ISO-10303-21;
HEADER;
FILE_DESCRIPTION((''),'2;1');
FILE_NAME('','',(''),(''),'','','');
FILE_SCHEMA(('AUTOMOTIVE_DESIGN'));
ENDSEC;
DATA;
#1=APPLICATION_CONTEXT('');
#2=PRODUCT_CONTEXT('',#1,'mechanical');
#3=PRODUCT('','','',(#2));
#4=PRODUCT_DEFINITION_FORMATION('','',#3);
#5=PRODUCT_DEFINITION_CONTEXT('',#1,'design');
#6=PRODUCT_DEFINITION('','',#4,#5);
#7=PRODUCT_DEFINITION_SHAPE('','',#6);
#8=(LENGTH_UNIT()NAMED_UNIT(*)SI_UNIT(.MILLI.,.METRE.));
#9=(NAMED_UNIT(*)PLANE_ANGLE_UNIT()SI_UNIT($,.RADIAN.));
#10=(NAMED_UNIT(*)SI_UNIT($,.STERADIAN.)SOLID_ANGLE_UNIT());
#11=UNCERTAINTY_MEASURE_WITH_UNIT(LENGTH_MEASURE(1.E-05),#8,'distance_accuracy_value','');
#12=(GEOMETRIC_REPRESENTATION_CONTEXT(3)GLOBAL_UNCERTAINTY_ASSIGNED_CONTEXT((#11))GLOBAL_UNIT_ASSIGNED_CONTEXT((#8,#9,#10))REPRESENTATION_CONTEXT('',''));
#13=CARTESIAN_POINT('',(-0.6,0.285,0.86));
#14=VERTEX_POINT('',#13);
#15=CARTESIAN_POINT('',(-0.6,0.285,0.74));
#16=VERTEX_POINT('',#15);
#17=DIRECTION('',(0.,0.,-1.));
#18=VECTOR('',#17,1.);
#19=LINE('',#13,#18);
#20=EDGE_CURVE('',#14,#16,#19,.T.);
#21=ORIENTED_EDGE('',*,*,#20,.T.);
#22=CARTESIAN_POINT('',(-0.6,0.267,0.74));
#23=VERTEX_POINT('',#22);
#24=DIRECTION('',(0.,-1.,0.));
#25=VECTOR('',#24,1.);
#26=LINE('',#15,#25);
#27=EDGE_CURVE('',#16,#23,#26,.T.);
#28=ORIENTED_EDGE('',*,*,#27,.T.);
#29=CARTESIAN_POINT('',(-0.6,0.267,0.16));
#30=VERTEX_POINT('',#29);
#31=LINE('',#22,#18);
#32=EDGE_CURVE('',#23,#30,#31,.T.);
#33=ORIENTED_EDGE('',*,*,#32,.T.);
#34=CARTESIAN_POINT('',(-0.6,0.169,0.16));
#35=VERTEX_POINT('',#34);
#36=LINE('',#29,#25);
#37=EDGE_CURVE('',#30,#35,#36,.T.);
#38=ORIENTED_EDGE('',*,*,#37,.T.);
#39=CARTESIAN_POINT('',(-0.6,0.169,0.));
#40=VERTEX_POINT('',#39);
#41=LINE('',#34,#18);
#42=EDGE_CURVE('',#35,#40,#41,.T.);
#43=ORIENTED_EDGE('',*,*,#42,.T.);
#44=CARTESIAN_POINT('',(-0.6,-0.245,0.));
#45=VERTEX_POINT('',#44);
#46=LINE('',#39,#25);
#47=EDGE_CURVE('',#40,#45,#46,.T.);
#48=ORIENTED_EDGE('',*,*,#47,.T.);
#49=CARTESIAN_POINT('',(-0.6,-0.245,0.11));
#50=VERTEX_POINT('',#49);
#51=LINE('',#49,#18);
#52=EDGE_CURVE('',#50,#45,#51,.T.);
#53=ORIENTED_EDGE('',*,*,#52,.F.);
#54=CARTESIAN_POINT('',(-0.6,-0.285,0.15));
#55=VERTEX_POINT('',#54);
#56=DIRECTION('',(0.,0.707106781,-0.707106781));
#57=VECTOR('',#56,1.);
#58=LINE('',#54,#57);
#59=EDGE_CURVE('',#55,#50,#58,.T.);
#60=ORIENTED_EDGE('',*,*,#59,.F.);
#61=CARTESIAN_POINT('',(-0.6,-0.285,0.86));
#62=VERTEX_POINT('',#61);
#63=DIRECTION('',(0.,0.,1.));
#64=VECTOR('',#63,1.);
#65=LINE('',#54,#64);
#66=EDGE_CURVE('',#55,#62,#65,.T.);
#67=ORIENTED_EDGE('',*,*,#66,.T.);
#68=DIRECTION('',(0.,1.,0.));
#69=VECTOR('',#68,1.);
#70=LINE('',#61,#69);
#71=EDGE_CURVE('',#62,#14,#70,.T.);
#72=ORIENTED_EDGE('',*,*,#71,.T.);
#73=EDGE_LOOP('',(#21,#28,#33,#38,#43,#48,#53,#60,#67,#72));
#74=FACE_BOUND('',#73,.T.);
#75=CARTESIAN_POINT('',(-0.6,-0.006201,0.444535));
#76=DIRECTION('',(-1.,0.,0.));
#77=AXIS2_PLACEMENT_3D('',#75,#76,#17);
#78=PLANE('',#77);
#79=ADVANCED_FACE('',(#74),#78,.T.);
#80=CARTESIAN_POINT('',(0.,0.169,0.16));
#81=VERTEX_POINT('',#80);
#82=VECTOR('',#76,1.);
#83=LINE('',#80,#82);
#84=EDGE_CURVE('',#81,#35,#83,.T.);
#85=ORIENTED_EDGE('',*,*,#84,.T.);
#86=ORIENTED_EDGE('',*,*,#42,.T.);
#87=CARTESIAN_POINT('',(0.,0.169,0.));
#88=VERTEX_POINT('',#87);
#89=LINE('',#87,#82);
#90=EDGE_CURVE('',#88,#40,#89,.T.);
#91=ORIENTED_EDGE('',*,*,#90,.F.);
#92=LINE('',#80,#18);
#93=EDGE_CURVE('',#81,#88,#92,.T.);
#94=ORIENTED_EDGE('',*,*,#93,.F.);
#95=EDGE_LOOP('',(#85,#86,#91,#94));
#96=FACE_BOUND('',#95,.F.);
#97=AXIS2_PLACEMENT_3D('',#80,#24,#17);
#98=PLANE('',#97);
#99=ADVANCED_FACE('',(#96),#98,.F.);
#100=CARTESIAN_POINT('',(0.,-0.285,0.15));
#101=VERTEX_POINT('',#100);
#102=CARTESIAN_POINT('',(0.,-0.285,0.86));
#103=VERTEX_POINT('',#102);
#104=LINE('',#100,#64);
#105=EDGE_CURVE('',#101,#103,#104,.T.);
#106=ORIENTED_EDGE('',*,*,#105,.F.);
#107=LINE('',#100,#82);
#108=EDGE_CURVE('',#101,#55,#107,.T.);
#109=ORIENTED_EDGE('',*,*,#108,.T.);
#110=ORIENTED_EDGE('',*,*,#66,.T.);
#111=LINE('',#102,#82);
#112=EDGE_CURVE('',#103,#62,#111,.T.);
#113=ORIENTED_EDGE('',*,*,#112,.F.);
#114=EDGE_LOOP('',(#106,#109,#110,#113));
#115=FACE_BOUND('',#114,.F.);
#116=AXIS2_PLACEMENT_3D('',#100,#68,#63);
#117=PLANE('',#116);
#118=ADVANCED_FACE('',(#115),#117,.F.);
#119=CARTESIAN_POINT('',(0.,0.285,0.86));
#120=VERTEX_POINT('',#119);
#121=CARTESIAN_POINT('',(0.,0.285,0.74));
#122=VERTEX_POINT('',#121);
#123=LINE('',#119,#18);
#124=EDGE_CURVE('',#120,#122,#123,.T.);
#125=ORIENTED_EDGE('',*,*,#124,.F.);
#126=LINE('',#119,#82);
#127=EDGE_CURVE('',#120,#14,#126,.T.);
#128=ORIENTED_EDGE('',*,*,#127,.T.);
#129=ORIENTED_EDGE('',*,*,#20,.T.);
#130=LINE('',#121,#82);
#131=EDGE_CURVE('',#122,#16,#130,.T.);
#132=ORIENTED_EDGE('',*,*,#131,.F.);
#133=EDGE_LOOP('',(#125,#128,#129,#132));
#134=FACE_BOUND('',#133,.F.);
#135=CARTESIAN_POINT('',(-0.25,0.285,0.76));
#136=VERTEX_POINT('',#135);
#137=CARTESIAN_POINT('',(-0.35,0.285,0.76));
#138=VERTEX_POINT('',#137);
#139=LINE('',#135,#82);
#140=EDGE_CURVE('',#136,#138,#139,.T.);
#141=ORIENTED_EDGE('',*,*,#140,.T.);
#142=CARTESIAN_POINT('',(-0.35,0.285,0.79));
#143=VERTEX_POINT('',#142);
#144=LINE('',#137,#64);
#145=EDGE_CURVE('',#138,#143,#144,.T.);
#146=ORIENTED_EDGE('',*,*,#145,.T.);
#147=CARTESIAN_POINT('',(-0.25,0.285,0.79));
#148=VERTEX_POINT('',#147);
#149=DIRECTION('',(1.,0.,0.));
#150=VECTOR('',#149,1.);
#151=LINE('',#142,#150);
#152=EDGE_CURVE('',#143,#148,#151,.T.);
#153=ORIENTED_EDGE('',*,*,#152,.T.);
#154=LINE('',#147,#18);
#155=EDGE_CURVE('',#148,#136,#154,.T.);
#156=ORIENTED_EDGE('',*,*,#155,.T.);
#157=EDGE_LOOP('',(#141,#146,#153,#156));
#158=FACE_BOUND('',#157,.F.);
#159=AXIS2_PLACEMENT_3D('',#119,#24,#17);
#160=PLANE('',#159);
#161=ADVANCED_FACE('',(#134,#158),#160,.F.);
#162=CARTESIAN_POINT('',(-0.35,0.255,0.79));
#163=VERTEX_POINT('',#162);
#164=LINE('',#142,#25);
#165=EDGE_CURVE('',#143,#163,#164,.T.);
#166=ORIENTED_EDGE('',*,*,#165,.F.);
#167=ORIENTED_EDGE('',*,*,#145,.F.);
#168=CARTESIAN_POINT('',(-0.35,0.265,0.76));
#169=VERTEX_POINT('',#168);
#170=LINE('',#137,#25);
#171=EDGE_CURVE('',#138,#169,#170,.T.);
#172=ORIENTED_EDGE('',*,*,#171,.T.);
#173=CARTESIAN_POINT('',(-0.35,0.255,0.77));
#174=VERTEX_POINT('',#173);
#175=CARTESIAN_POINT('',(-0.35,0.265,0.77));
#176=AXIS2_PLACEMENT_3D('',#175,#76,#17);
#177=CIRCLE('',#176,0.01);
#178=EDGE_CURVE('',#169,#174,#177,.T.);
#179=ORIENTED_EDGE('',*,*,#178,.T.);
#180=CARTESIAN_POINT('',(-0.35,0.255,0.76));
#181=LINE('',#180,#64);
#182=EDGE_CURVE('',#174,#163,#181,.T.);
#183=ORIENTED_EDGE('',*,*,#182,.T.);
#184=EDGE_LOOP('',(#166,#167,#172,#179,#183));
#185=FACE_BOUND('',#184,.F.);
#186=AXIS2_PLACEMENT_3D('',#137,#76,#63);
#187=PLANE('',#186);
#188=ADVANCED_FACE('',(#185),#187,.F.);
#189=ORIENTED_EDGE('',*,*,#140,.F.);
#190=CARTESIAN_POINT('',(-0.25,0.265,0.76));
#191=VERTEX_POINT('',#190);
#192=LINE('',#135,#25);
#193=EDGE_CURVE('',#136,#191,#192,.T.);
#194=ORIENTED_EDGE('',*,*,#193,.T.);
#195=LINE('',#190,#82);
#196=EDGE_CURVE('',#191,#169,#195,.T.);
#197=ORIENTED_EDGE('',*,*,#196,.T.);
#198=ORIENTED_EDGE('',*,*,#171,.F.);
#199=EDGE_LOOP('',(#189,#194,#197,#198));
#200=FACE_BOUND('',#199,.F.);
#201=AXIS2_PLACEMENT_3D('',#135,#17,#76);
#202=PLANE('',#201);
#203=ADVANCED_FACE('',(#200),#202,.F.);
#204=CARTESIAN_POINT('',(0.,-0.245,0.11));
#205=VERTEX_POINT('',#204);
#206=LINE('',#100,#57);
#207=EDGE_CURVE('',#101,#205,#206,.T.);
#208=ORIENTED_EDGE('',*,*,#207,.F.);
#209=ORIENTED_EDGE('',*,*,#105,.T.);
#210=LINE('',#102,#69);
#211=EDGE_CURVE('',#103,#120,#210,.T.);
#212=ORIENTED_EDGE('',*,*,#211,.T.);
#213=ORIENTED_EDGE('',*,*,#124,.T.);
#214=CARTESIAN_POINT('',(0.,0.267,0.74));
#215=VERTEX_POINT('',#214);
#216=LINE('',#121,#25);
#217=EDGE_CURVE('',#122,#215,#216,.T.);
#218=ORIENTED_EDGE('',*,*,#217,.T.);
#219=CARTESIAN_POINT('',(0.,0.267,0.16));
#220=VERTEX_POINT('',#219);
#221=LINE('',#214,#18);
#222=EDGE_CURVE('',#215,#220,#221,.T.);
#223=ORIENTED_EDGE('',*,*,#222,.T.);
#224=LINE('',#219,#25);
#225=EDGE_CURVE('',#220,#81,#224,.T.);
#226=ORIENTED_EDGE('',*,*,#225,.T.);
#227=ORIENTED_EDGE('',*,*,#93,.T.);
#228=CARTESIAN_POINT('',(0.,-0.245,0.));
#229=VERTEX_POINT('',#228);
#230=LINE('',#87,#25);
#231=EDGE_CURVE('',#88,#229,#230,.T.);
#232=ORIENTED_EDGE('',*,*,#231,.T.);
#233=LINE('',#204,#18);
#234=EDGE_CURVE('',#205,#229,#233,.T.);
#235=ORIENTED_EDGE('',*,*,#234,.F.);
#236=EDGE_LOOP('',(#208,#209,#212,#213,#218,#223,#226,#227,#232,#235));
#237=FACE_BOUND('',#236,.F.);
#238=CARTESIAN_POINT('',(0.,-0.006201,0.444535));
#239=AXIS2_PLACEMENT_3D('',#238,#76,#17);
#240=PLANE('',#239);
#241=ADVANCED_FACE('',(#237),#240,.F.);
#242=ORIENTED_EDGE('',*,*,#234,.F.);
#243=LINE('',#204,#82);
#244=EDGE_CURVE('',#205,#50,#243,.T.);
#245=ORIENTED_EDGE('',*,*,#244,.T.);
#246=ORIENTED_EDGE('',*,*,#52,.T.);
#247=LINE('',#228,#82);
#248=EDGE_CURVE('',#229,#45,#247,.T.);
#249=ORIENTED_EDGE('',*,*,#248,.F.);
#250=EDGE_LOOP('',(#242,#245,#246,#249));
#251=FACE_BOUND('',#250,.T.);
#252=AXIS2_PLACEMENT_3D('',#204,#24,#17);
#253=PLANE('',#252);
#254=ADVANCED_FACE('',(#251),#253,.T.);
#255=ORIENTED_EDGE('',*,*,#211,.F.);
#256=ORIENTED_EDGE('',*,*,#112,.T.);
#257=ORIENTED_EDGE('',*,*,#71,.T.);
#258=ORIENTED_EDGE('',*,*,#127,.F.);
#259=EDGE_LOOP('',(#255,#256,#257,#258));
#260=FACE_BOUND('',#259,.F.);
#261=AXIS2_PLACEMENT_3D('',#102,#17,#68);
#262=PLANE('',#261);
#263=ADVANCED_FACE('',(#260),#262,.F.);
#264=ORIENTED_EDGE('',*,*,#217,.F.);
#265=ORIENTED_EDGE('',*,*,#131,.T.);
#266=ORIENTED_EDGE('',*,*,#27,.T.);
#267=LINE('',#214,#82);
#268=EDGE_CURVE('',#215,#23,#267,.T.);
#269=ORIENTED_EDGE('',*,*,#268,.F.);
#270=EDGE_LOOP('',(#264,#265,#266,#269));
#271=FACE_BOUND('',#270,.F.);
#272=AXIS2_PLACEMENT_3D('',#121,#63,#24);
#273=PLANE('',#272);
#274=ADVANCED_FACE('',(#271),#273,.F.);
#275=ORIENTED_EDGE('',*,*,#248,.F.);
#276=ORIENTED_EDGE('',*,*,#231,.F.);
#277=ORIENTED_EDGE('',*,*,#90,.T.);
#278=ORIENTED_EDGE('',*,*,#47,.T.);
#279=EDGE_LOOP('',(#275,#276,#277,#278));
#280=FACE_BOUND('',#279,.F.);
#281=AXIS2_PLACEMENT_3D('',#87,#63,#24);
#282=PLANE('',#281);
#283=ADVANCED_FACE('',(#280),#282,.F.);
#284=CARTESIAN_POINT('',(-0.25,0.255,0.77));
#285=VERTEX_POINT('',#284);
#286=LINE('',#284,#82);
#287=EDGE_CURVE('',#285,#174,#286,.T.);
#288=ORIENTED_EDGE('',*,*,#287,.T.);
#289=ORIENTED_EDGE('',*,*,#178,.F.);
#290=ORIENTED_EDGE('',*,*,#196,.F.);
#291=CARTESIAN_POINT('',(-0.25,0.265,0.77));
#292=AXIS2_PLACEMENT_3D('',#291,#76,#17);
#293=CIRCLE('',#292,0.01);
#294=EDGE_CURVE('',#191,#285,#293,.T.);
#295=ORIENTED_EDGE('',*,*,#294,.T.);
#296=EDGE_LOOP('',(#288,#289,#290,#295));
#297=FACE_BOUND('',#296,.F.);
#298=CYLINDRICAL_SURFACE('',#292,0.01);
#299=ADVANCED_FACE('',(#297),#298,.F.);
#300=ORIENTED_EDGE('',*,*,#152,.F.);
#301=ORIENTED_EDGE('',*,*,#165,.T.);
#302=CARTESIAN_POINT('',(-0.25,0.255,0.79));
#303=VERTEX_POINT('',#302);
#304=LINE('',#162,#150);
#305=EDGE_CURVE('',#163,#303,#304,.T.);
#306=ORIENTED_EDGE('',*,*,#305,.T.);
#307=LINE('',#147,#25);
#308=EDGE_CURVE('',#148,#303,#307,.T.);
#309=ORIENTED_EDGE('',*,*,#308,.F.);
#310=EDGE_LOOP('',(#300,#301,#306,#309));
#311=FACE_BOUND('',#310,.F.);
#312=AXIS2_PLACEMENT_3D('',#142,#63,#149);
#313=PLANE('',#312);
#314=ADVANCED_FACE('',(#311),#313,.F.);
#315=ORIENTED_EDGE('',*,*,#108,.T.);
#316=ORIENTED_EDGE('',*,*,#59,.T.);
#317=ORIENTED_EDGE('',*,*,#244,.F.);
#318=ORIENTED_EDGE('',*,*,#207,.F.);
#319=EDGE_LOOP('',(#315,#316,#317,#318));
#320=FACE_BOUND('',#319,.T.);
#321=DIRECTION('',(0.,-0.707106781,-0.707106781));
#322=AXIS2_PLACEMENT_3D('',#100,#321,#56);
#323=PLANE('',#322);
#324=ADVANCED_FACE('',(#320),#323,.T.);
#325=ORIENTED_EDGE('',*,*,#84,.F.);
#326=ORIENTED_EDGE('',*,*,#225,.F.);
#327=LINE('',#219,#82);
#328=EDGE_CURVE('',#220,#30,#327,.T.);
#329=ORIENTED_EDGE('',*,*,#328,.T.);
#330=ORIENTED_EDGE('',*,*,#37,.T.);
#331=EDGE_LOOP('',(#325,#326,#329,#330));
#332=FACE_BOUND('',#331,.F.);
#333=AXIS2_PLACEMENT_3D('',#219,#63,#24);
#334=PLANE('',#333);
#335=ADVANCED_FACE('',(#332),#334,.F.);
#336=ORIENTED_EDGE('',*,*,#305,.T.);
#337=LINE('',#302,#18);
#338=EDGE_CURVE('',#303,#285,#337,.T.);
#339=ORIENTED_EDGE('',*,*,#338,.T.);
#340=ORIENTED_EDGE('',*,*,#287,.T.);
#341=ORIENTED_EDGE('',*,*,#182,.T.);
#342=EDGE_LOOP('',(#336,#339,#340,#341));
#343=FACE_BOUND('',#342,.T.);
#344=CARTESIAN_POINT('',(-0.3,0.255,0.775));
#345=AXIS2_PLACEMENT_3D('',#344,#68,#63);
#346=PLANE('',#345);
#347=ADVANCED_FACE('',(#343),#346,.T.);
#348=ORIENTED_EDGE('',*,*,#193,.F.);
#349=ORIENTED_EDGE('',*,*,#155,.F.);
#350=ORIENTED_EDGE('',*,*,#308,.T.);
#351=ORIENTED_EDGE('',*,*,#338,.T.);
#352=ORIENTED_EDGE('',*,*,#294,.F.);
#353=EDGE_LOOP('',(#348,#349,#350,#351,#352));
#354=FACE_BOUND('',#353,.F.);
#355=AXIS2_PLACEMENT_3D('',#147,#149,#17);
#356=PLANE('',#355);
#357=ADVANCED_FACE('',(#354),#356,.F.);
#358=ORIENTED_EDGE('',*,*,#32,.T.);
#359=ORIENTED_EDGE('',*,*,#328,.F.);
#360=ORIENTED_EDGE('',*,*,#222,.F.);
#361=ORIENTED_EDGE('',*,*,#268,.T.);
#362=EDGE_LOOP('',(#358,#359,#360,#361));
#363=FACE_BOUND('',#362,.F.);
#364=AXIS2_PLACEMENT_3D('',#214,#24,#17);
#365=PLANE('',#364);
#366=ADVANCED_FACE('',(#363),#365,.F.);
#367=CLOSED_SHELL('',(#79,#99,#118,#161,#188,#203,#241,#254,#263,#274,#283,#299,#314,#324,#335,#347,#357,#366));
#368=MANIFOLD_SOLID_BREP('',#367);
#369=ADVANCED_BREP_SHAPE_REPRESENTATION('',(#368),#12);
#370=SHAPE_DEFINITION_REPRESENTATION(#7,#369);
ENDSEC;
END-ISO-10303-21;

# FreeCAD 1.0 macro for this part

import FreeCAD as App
import Part
import Sketcher
from FreeCAD import Vector
Q = App.Units.Quantity


def edges_at(feature, points):
    """Names of the edges that pass closest to the given points."""
    edges = feature.Shape.Edges
    near = lambda p: min(range(len(edges)), key=lambda i: edges[i].distToShape(Part.Vertex(*p))[0])
    return sorted({f"Edge{near(p) + 1}" for p in points})


def add_polygon(sketch, points):
    """Adds a closed chain of lines whose ends are joined by coincident constraints."""
    first, n = sketch.GeometryCount, len(points)
    for a, b in zip(points, points[1:] + points[:1]):
        sketch.addGeometry(Part.LineSegment(App.Vector(*a, 0), App.Vector(*b, 0)), False)
    for i in range(n):
        sketch.addConstraint(Sketcher.Constraint("Coincident", first + i, 2, first + (i + 1) % n, 1))

doc = App.newDocument("Part")
body = doc.addObject("PartDesign::Body", "Body")

# Sketch on YZ plane
sketch1 = body.newObject("Sketcher::SketchObject", "Sketch")
sketch1.AttachmentSupport = (doc.getObject("YZ_Plane"), [""])
sketch1.MapMode = "FlatFace"
add_polygon(sketch1, [(0.285, 0.86), (-0.285, 0.86), (-0.285, 0.15), (-0.245, 0.11), (-0.245, 0), (0.169, 0), (0.169, 0.16), (0.267, 0.16), (0.267, 0.74), (0.285, 0.74)])  # lines 0-9
sketch1.addConstraint(Sketcher.Constraint("Horizontal", 0))
sketch1.addConstraint(Sketcher.Constraint("Vertical", 1))
sketch1.addConstraint(Sketcher.Constraint("Vertical", 3))
sketch1.addConstraint(Sketcher.Constraint("Horizontal", 4))
sketch1.addConstraint(Sketcher.Constraint("Vertical", 5))
sketch1.addConstraint(Sketcher.Constraint("Horizontal", 6))
sketch1.addConstraint(Sketcher.Constraint("Vertical", 7))
sketch1.addConstraint(Sketcher.Constraint("Horizontal", 8))
sketch1.addConstraint(Sketcher.Constraint("Vertical", 9))
sketch1.addConstraint(Sketcher.Constraint("PointOnObject", 3, 2, -1))
sketch1.addConstraint(Sketcher.Constraint("Angle", 2, Q("-45 deg")))
sketch1.addConstraint(Sketcher.Constraint("DistanceX", 0, 2, -1, 1, 0.285))
sketch1.addConstraint(Sketcher.Constraint("DistanceX", -1, 1, 4, 2, 0.169))
sketch1.addConstraint(Sketcher.Constraint("DistanceX", -1, 1, 8, 2, 0.285))
sketch1.addConstraint(Sketcher.Constraint("DistanceY", 1, 2, 1, 1, 0.71))
sketch1.addConstraint(Sketcher.Constraint("DistanceY", 3, 2, 3, 1, 0.11))
sketch1.addConstraint(Sketcher.Constraint("DistanceY", 5, 1, 5, 2, 0.16))
sketch1.addConstraint(Sketcher.Constraint("DistanceY", 7, 1, 7, 2, 0.58))
sketch1.addConstraint(Sketcher.Constraint("DistanceY", 9, 1, 9, 2, 0.12))
sketch1.addConstraint(Sketcher.Constraint("DistanceX", 6, 1, 6, 2, 0.098))
pad1 = body.newObject("PartDesign::Pad", "Pad")
pad1.Profile = sketch1
pad1.Length = 0.6
pad1.Reversed = True

# Sketch on XZ plane
sketch2 = body.newObject("Sketcher::SketchObject", "Sketch001")
sketch2.AttachmentSupport = (doc.getObject("XZ_Plane"), [""])
sketch2.MapMode = "FlatFace"
sketch2.AttachmentOffset = App.Placement(Vector(0, 0, -0.285), App.Rotation())
add_polygon(sketch2, [(-0.25, 0.79), (-0.25, 0.76), (-0.35, 0.76), (-0.35, 0.79)])  # lines 0-3
sketch2.addConstraint(Sketcher.Constraint("Vertical", 0))
sketch2.addConstraint(Sketcher.Constraint("Horizontal", 1))
sketch2.addConstraint(Sketcher.Constraint("Vertical", 2))
sketch2.addConstraint(Sketcher.Constraint("Horizontal", 3))
sketch2.addConstraint(Sketcher.Constraint("DistanceX", 1, 2, 1, 1, 0.1))
sketch2.addConstraint(Sketcher.Constraint("DistanceY", 0, 2, 0, 1, 0.03))
sketch2.addConstraint(Sketcher.Constraint("DistanceX", 0, 2, -1, 1, 0.25))
sketch2.addConstraint(Sketcher.Constraint("DistanceY", -1, 1, 0, 2, 0.76))
pocket1 = body.newObject("PartDesign::Pocket", "Pocket")
pocket1.Profile = sketch2
pocket1.Length = 0.03
pocket1.Reversed = True
doc.recompute()

fillet = body.newObject("PartDesign::Fillet", "Fillet")
fillet.Base = (pocket1, edges_at(pocket1, [(-0.3, 0.255, 0.76)]))
fillet.Radius = 0.01

doc.recompute()
